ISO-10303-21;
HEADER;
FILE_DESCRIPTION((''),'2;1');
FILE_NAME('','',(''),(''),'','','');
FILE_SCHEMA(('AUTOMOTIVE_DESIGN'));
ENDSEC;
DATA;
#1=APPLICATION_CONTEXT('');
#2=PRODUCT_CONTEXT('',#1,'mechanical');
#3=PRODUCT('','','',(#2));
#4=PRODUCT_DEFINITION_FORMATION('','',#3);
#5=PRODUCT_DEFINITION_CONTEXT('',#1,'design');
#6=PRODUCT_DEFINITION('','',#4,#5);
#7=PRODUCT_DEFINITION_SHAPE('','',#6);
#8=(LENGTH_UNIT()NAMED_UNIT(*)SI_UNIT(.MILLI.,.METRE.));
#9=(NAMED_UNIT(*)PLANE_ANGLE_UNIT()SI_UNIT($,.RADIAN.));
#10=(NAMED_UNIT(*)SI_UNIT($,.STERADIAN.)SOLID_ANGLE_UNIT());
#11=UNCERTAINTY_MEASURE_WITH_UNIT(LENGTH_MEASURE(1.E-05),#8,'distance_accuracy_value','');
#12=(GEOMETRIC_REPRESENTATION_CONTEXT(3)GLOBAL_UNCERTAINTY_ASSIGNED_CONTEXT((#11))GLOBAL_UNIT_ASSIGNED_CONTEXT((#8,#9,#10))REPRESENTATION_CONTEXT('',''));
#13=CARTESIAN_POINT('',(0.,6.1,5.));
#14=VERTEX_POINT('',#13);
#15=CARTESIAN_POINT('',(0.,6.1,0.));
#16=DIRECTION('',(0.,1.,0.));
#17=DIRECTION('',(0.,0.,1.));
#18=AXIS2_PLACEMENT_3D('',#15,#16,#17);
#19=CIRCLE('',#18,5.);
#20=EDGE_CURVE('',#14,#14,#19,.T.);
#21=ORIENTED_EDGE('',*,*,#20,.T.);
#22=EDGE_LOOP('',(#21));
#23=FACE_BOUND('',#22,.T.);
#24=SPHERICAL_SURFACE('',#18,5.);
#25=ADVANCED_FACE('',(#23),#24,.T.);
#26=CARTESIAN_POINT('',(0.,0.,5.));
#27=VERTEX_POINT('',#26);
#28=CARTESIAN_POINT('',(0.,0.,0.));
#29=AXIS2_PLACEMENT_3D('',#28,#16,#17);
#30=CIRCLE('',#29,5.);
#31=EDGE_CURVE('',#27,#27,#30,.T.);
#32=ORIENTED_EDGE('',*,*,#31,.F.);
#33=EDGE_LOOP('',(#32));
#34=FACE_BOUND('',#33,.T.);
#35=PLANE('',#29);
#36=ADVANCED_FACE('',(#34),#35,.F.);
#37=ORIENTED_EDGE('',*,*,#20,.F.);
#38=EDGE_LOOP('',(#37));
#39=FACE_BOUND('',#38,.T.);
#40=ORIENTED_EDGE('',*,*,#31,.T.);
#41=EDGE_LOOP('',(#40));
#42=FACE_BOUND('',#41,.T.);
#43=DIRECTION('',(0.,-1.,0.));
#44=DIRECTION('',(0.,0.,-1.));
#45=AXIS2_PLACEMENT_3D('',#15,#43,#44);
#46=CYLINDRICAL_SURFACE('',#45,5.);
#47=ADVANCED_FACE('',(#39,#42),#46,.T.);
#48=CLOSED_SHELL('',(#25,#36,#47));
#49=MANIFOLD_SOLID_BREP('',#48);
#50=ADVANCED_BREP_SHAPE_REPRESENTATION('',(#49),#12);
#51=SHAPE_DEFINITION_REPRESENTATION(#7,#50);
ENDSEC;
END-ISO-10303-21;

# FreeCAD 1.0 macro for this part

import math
import FreeCAD as App
import Part
import Sketcher

doc = App.newDocument("Part")
body = doc.addObject("PartDesign::Body", "Body")

# Sketch on XZ plane
sketch1 = doc.addObject("Sketcher::SketchObject", "Sketch")
body.addObject(sketch1)
sketch1.AttachmentSupport = (doc.XZ_Plane, [""])
sketch1.MapMode = "FlatFace"
sketch1.addGeometry(Part.Circle(App.Vector(0, 0, 0), App.Vector(0, 0, 1), 5), False)
sketch1.addConstraint(Sketcher.Constraint("Coincident", 0, 3, -1, 1))
sketch1.addConstraint(Sketcher.Constraint("Diameter", 0, 10.0))
pad1 = doc.addObject("PartDesign::Pad", "Pad")
body.addObject(pad1)
pad1.Profile = sketch1
pad1.Length = 6.1
pad1.Reversed = True

# Sketch on XZ plane
sketch2 = doc.addObject("Sketcher::SketchObject", "Sketch001")
body.addObject(sketch2)
sketch2.AttachmentSupport = (doc.XZ_Plane, [""])
sketch2.MapMode = "FlatFace"
sketch2.AttachmentOffset = App.Placement(App.Vector(0, 0, -6.1), App.Rotation())
sketch2.addGeometry(Part.LineSegment(App.Vector(0, 5, 0), App.Vector(0, -5, 0)), False)
sketch2.addGeometry(Part.ArcOfCircle(Part.Circle(App.Vector(0, 0, 0), App.Vector(0, 0, 1), 5), math.radians(90), math.radians(270)), False)
sketch2.addConstraint(Sketcher.Constraint("Coincident", 0, 1, 1, 1))
sketch2.addConstraint(Sketcher.Constraint("Coincident", 1, 2, 0, 2))
sketch2.addConstraint(Sketcher.Constraint("Vertical", 0))
sketch2.addConstraint(Sketcher.Constraint("Coincident", 1, 3, -1, 1))
sketch2.addConstraint(Sketcher.Constraint("PointOnObject", 0, 1, -2))
sketch2.addConstraint(Sketcher.Constraint("Radius", 1, 5.0))
revolution = doc.addObject("PartDesign::Revolution", "Revolution")
body.addObject(revolution)
revolution.Profile = sketch2
revolution.ReferenceAxis = (sketch2, ["V_Axis"])
revolution.Angle = 180

# Sketch on XZ plane
sketch3 = doc.addObject("Sketcher::SketchObject", "Sketch002")
body.addObject(sketch3)
sketch3.AttachmentSupport = (doc.XZ_Plane, [""])
sketch3.MapMode = "FlatFace"
sketch3.AttachmentOffset = App.Placement(App.Vector(0, 0, -6.1), App.Rotation())
sketch3.addGeometry(Part.LineSegment(App.Vector(0, 5, 0), App.Vector(0, -5, 0)), False)
sketch3.addGeometry(Part.ArcOfCircle(Part.Circle(App.Vector(0, 0, 0), App.Vector(0, 0, 1), 5), math.radians(90), math.radians(270)), False)
sketch3.addConstraint(Sketcher.Constraint("Coincident", 0, 1, 1, 1))
sketch3.addConstraint(Sketcher.Constraint("Coincident", 1, 2, 0, 2))
sketch3.addConstraint(Sketcher.Constraint("Vertical", 0))
sketch3.addConstraint(Sketcher.Constraint("Coincident", 1, 3, -1, 1))
sketch3.addConstraint(Sketcher.Constraint("PointOnObject", 0, 1, -2))
sketch3.addConstraint(Sketcher.Constraint("Radius", 1, 5.0))
revolution2 = doc.addObject("PartDesign::Revolution", "Revolution001")
body.addObject(revolution2)
revolution2.Profile = sketch3
revolution2.ReferenceAxis = (sketch3, ["V_Axis"])
revolution2.Angle = 180
revolution2.Reversed = True

doc.recompute()
